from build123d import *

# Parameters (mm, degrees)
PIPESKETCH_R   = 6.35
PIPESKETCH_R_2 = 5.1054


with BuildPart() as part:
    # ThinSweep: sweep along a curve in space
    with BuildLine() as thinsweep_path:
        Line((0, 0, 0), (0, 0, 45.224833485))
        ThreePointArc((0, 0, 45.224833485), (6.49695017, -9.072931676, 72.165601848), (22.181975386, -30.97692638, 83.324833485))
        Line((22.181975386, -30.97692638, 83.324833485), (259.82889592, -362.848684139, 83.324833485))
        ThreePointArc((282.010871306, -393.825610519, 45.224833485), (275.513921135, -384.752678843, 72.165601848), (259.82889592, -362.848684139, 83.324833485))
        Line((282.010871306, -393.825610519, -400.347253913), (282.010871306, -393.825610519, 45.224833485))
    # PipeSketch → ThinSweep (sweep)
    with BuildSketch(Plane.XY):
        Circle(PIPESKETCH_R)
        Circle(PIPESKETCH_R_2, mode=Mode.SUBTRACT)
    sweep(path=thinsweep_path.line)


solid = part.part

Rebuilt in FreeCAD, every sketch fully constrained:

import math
import FreeCAD as App
import Part
import Sketcher
from FreeCAD import Vector
Q = App.Units.Quantity

doc = App.newDocument("Part")
body = doc.addObject("PartDesign::Body", "Body")

# Sketch on XY plane
sketch1 = doc.addObject("Sketcher::SketchObject", "Sketch")
body.addObject(sketch1)
sketch1.AttachmentSupport = (doc.XY_Plane, [""])
sketch1.MapMode = "FlatFace"
sketch1.addGeometry(Part.Circle(Vector(0, 0, 0), Vector(0, 0, 1), 6), False)
sketch1.addGeometry(Part.Circle(Vector(0, 0, 0), Vector(0, 0, 1), 5), False)
sketch1.addConstraint(Sketcher.Constraint("Coincident", 0, 3, -1, 1))
sketch1.addConstraint(Sketcher.Constraint("Coincident", 1, 3, -1, 1))
sketch1.addConstraint(Sketcher.Constraint("Diameter", 0, Q("0.5 in")))
sketch1.addConstraint(Sketcher.Constraint("Diameter", 1, Q("0.402 in")))

# Sketch on an angled plane
sketch2 = doc.addObject("Sketcher::SketchObject", "Sketch001")
body.addObject(sketch2)
sketch2.Placement = App.Placement(Vector(0, 0, 0), App.Rotation(Vector(-0.582204078, 0.813042687, 0), Vector(0, 0, 0.999999999), Vector(0.813042687, 0.582204078, 0), "ZXY"))
sketch2.addGeometry(Part.LineSegment(Vector(0, 0, 0), Vector(0, 45, 0)), False)
sketch2.addGeometry(Part.ArcOfCircle(Part.Circle(Vector(-38, 45, 0), Vector(0, 0, 1), 38), math.radians(0), math.radians(90)), False)
sketch2.addGeometry(Part.LineSegment(Vector(-38, 83, 0), Vector(-446, 83, 0)), False)
sketch2.addGeometry(Part.ArcOfCircle(Part.Circle(Vector(-446, 45, 0), Vector(0, 0, 1), 38), math.radians(90), math.radians(180)), False)
sketch2.addGeometry(Part.LineSegment(Vector(-484, 45, 0), Vector(-484, -400, 0)), False)
sketch2.addConstraint(Sketcher.Constraint("Tangent", 0, 2, 1, 1))
sketch2.addConstraint(Sketcher.Constraint("Tangent", 1, 2, 2, 1))
sketch2.addConstraint(Sketcher.Constraint("Tangent", 2, 2, 3, 1))
sketch2.addConstraint(Sketcher.Constraint("Tangent", 3, 2, 4, 1))
sketch2.addConstraint(Sketcher.Constraint("Vertical", 0))
sketch2.addConstraint(Sketcher.Constraint("Horizontal", 2))
sketch2.addConstraint(Sketcher.Constraint("Vertical", 4))
sketch2.addConstraint(Sketcher.Constraint("Coincident", 0, 1, -1, 1))
sketch2.addConstraint(Sketcher.Constraint("Equal", 1, 3))
sketch2.addConstraint(Sketcher.Constraint("Radius", 1, Q("1.5 in")))
sketch2.addConstraint(Sketcher.Constraint("DistanceX", 2, 2, 2, 1, Q("408.184912 mm")))
sketch2.addConstraint(Sketcher.Constraint("DistanceY", 0, 1, 0, 2, Q("45.224833 mm")))
sketch2.addConstraint(Sketcher.Constraint("DistanceY", 4, 2, 4, 1, Q("445.572087 mm")))
doc.recompute()

additivepipe = doc.addObject("PartDesign::AdditivePipe", "AdditivePipe")
body.addObject(additivepipe)
additivepipe.Profile = sketch1
additivepipe.Spine = (sketch2, ["Edge1", "Edge2", "Edge3", "Edge4", "Edge5"])

doc.recompute()
